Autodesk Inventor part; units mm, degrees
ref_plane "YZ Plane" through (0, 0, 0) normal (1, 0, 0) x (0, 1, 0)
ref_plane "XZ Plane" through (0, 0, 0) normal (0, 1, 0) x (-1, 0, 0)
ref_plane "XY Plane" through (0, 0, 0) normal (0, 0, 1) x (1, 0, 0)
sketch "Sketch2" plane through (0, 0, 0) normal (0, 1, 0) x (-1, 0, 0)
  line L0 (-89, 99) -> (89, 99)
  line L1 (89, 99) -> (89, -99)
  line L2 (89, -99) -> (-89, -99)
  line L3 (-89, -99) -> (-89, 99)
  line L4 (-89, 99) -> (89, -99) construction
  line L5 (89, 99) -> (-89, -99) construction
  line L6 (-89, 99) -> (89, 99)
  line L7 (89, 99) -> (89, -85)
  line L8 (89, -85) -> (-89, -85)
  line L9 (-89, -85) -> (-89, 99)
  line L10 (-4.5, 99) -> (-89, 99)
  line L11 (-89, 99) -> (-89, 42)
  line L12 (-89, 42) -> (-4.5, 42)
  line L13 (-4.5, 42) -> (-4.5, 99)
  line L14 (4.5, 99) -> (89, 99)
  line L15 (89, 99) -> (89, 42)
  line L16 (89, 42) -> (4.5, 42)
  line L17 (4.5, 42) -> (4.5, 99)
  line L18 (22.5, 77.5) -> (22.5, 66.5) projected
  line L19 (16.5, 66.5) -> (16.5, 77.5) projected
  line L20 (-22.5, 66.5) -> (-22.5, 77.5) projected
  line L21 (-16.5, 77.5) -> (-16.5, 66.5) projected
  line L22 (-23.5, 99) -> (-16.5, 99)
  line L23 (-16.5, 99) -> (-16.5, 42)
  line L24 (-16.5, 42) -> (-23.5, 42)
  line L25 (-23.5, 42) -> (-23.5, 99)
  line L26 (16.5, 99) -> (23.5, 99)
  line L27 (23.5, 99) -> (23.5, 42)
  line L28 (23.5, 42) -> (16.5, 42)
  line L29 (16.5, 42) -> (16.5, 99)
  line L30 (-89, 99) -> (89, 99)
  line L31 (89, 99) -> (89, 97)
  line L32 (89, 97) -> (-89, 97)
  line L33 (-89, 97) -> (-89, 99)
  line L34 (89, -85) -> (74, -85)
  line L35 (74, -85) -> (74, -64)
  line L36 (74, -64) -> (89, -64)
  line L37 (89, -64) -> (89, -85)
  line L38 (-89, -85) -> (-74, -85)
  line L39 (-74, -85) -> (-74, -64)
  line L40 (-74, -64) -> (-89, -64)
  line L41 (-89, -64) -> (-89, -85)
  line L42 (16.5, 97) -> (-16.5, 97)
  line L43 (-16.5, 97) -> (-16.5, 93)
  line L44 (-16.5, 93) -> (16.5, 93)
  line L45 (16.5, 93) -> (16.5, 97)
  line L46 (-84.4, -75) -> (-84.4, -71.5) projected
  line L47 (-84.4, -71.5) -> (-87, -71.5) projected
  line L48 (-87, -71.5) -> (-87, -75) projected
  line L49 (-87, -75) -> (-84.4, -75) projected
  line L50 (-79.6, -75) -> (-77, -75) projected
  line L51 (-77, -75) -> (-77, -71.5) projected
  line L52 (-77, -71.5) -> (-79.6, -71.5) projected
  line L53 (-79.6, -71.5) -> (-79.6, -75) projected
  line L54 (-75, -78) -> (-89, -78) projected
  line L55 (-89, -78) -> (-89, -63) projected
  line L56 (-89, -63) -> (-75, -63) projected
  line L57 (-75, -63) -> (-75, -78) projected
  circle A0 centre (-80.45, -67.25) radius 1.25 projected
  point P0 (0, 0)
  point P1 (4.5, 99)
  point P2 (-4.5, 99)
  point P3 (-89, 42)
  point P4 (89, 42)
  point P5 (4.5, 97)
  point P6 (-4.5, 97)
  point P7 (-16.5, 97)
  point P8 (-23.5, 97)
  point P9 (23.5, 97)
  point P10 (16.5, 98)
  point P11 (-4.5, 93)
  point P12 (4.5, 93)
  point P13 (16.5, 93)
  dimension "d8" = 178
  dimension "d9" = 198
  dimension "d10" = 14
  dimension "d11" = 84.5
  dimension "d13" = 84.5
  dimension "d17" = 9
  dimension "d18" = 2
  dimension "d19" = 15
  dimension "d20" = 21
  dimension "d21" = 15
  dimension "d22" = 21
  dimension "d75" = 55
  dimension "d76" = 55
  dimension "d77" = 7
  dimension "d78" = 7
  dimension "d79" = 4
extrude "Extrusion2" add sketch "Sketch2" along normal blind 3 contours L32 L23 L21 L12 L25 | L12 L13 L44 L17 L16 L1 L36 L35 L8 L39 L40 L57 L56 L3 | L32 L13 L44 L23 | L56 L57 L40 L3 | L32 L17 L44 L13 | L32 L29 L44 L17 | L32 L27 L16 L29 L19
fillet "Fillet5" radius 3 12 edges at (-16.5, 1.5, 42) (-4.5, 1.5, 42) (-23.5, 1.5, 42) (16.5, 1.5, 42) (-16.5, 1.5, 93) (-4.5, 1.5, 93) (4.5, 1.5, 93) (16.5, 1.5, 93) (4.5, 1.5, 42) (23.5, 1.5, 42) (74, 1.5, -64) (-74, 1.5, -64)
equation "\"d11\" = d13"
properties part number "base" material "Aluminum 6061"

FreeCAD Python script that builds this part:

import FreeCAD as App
import Part
import Sketcher

V = App.Vector
Q = App.Units.Quantity


def edges_at(feature, points):
    """Names of the edges that pass closest to the given points."""
    edges = feature.Shape.Edges
    near = lambda p: min(range(len(edges)), key=lambda i: edges[i].distToShape(Part.Vertex(*p))[0])
    return sorted({f"Edge{near(p) + 1}" for p in points})


def add_polygon(sketch, points):
    """Adds a closed chain of lines whose ends are joined by coincident constraints."""
    first, n = sketch.GeometryCount, len(points)
    for a, b in zip(points, points[1:] + points[:1]):
        sketch.addGeometry(Part.LineSegment(App.Vector(*a, 0), App.Vector(*b, 0)), False)
    for i in range(n):
        sketch.addConstraint(Sketcher.Constraint("Coincident", first + i, 2, first + (i + 1) % n, 1))

doc = App.newDocument("Part")
body = doc.addObject("PartDesign::Body", "Body")

# Sketch on XZ plane
sketch1 = body.newObject("Sketcher::SketchObject", "Sketch")
sketch1.AttachmentSupport = (doc.getObject("XZ_Plane"), [""])
sketch1.MapMode = "FlatFace"
add_polygon(sketch1, [(23.5, 97), (23.5, 42), (89, 42), (89, -64), (74, -64), (74, -85), (-74, -85), (-74, -64), (-89, -64), (-89, 42), (-23.5, 42), (-23.5, 97)])  # lines 0-11
add_polygon(sketch1, [(16.5, 93), (4.5, 93), (4.5, 42), (16.5, 42)])  # lines 12-15
add_polygon(sketch1, [(-4.5, 42), (-4.5, 93), (-16.5, 93), (-16.5, 42)])  # lines 16-19
sketch1.addConstraint([
    Sketcher.Constraint("Vertical", 0),
    Sketcher.Constraint("Horizontal", 1),
    Sketcher.Constraint("Vertical", 2),
    Sketcher.Constraint("Horizontal", 3),
    Sketcher.Constraint("Vertical", 4),
    Sketcher.Constraint("Horizontal", 5),
    Sketcher.Constraint("Vertical", 6),
    Sketcher.Constraint("Horizontal", 7),
    Sketcher.Constraint("Vertical", 8),
    Sketcher.Constraint("Horizontal", 9),
    Sketcher.Constraint("Vertical", 10),
    Sketcher.Constraint("Horizontal", 11),
    Sketcher.Constraint("Horizontal", 12),
    Sketcher.Constraint("Vertical", 13),
    Sketcher.Constraint("Horizontal", 14),
    Sketcher.Constraint("Vertical", 15),
    Sketcher.Constraint("Vertical", 16),
    Sketcher.Constraint("Horizontal", 17),
    Sketcher.Constraint("Vertical", 18),
    Sketcher.Constraint("Horizontal", 19),
    Sketcher.Constraint("Symmetric", 3, 2, 6, 2, -2),
    Sketcher.Constraint("Symmetric", 1, 2, 8, 2, -2),
    Sketcher.Constraint("Symmetric", 12, 2, 16, 2, -2),
    Sketcher.Constraint("Symmetric", 14, 2, 18, 2, -2),
    Sketcher.Constraint("Horizontal", 9, 2, 13, 2),
    Sketcher.Constraint("Equal", 1, 9),
    Sketcher.Constraint("DistanceX", 3, 2, 3, 1, Q("15 mm")),
    Sketcher.Constraint("DistanceY", 0, 2, 0, 1, Q("55 mm")),
    Sketcher.Constraint("DistanceY", 4, 2, 4, 1, Q("21 mm")),
    Sketcher.Constraint("DistanceX", 8, 2, 1, 2, Q("178 mm")),
    Sketcher.Constraint("DistanceY", 12, 2, 11, 2, Q("4 mm")),
    Sketcher.Constraint("DistanceX", 14, 2, 0, 2, Q("7 mm")),
    Sketcher.Constraint("DistanceX", 16, 2, 12, 2, Q("9 mm")),
    Sketcher.Constraint("DistanceX", 16, 2, 15, 2, Q("21 mm")),
    Sketcher.Constraint("DistanceY", 2, 2, 2, 1, Q("106 mm")),
    Sketcher.Constraint("DistanceY", -1, 1, 0, 2, Q("42 mm")),
])
pad1 = body.newObject("PartDesign::Pad", "Pad")
pad1.Profile = sketch1
pad1.Length = 3
pad1.Reversed = True
doc.recompute()

fillet = body.newObject("PartDesign::Fillet", "Fillet")
fillet.Base = (pad1, edges_at(pad1, [
    (-16.5, 1.5, 42),
    (-4.5, 1.5, 42),
    (-23.5, 1.5, 42),
    (16.5, 1.5, 42),
    (-16.5, 1.5, 93),
    (-4.5, 1.5, 93),
    (4.5, 1.5, 93),
    (16.5, 1.5, 93),
    (4.5, 1.5, 42),
    (23.5, 1.5, 42),
    (74, 1.5, -64),
    (-74, 1.5, -64),
]))
fillet.Radius = 3

doc.recompute()
